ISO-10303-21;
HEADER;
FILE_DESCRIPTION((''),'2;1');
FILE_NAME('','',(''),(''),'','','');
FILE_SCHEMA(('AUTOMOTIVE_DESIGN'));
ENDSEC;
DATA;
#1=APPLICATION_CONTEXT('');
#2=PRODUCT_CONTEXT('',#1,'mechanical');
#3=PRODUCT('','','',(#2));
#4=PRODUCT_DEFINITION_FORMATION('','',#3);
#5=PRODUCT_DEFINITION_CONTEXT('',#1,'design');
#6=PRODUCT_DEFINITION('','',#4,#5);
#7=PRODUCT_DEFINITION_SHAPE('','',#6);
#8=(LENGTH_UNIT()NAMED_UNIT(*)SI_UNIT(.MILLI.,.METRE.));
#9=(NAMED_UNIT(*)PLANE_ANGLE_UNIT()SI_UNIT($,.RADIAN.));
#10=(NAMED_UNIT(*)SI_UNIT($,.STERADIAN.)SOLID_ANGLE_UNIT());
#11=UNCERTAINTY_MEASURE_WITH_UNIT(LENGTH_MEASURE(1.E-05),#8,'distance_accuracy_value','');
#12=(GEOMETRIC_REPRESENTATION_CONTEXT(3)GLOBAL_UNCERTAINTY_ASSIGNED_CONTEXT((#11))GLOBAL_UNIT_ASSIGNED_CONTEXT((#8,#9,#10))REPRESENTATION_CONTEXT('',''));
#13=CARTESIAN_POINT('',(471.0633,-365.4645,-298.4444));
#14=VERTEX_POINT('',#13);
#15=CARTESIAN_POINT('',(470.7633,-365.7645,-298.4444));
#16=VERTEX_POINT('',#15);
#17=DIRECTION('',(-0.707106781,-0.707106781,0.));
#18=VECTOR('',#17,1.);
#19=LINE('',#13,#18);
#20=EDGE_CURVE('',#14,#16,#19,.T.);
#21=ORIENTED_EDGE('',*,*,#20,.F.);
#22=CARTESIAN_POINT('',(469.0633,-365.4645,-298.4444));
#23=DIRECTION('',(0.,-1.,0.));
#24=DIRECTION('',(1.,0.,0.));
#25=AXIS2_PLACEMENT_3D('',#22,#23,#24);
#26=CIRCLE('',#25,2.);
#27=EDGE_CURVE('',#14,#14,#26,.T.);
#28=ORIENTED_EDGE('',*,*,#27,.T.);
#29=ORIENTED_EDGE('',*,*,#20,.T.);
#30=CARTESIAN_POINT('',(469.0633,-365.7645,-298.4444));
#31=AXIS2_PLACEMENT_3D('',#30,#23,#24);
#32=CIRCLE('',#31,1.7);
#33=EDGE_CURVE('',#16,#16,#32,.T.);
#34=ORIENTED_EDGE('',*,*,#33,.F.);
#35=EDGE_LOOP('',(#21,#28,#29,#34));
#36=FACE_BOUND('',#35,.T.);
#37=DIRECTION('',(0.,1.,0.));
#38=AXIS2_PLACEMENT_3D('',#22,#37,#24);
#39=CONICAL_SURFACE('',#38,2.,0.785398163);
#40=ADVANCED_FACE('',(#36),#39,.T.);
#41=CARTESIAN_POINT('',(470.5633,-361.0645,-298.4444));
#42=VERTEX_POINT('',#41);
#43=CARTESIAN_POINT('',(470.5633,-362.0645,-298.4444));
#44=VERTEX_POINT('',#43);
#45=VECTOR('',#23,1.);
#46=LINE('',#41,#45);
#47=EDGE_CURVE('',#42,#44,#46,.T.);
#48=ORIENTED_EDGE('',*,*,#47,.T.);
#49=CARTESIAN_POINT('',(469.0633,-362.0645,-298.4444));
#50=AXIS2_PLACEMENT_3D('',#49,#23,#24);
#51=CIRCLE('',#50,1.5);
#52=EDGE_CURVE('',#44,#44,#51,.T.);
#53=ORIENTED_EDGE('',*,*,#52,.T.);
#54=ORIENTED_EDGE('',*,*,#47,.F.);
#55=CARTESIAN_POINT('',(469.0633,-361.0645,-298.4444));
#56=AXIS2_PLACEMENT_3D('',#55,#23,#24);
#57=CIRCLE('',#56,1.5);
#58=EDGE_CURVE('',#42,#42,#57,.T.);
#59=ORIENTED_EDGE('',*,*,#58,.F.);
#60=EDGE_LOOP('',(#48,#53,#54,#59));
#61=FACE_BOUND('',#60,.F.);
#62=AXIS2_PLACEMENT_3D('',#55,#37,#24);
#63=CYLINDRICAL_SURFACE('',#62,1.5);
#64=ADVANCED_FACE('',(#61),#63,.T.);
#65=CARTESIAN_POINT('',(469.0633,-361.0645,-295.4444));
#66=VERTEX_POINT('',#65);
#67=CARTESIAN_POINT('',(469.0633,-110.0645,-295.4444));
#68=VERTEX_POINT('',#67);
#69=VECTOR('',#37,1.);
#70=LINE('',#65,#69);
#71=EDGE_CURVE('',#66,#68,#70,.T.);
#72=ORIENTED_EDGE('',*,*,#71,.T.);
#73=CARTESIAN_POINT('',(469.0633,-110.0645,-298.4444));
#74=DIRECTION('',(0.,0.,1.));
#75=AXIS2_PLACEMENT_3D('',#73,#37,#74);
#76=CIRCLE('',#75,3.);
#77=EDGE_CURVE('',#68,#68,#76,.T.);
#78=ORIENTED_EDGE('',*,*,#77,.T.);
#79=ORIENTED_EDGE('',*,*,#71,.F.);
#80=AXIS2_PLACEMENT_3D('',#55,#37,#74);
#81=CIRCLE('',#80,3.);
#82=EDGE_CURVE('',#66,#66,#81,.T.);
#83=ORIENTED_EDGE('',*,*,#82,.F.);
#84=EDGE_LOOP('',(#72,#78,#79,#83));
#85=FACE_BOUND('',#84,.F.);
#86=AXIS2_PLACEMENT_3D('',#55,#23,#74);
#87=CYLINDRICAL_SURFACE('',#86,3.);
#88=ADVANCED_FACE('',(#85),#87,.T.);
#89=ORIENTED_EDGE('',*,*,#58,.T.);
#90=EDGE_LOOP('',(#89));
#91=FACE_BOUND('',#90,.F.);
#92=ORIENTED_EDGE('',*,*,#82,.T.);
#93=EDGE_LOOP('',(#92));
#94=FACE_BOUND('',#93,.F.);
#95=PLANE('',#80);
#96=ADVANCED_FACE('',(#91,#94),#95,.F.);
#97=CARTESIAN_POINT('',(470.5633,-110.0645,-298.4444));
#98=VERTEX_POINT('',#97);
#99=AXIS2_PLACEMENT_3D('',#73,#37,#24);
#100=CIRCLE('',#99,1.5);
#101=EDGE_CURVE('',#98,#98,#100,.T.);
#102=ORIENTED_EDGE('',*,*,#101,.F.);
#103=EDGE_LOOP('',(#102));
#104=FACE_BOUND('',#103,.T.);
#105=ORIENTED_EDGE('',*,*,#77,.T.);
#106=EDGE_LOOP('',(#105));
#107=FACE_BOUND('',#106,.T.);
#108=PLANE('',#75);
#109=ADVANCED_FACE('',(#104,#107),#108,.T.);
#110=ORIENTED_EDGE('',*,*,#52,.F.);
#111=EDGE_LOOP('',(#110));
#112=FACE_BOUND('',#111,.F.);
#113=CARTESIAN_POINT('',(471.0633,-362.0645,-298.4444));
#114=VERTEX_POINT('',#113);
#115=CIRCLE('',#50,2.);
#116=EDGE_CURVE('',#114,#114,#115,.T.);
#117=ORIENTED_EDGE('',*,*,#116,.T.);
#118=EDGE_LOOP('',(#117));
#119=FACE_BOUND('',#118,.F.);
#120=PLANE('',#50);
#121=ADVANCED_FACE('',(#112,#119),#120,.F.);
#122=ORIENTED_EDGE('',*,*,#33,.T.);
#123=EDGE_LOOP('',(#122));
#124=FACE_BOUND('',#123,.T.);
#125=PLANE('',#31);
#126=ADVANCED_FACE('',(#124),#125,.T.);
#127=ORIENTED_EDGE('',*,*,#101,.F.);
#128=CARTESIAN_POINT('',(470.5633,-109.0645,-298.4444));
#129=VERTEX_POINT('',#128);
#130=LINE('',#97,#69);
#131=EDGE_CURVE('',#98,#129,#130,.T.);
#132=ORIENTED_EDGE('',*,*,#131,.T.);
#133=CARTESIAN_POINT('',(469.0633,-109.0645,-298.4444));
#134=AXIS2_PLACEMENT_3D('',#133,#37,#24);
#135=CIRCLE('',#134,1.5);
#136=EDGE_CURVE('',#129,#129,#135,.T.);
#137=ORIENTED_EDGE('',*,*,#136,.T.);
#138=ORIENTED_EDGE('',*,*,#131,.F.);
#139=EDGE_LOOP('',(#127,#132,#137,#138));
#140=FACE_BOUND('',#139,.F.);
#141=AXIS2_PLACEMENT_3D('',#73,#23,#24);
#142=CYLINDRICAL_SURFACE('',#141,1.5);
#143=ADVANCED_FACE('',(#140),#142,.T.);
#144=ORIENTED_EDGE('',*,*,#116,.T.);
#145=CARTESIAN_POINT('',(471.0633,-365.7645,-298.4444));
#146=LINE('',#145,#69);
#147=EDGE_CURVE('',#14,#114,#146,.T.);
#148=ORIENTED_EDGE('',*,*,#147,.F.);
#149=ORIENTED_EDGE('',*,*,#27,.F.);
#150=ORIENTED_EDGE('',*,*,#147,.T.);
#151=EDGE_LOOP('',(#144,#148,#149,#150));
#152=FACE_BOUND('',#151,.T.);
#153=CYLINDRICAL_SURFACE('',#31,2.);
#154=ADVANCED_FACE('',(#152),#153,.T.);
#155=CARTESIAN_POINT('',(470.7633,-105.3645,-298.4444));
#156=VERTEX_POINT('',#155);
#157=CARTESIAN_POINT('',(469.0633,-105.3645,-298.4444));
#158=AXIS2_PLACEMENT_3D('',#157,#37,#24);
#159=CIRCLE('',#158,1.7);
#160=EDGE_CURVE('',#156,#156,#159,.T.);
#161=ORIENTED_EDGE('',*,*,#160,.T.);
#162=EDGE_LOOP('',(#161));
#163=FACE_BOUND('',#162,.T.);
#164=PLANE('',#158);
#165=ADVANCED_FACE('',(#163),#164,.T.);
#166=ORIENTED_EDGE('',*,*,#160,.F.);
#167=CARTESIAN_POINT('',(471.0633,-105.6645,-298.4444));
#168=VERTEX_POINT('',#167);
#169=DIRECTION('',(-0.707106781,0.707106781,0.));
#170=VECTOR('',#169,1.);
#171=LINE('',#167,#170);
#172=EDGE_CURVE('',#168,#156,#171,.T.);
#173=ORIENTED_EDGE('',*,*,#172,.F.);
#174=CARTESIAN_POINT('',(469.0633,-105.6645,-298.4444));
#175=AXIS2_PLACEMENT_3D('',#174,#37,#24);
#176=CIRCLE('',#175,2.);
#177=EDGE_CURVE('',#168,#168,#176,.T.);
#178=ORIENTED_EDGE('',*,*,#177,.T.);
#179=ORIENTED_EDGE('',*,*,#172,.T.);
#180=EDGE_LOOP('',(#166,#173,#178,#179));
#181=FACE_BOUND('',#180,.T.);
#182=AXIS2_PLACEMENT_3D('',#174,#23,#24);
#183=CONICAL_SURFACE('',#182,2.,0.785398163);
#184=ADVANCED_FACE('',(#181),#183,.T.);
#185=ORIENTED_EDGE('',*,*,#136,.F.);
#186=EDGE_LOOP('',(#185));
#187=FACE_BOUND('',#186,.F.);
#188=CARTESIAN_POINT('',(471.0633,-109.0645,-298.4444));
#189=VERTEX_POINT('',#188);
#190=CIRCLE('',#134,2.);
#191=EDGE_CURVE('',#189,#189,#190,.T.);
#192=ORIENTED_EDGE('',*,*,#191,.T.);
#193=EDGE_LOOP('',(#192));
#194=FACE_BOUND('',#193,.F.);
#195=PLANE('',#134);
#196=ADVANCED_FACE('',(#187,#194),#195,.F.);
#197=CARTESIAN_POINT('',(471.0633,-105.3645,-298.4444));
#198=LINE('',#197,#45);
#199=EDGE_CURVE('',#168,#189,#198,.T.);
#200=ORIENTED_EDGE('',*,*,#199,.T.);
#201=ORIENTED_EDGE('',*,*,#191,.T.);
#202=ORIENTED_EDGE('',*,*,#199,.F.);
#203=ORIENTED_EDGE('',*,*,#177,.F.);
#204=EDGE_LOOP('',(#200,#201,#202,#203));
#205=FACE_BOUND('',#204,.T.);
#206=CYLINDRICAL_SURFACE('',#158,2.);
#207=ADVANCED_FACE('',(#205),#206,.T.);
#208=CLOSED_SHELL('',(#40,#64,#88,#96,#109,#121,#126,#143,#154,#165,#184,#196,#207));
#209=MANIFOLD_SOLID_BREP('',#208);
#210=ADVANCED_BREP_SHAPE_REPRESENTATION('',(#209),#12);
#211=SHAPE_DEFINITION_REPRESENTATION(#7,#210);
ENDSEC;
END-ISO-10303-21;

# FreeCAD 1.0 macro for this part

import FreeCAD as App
import Part
import Sketcher
from FreeCAD import Vector
Q = App.Units.Quantity


def edges_at(feature, points):
    """Names of the edges that pass closest to the given points."""
    edges = feature.Shape.Edges
    near = lambda p: min(range(len(edges)), key=lambda i: edges[i].distToShape(Part.Vertex(*p))[0])
    return sorted({f"Edge{near(p) + 1}" for p in points})

doc = App.newDocument("Part")
params = doc.addObject("Spreadsheet::Sheet", "Params")
for row, (alias, value) in enumerate([
    ("sketch1_diameter", "6 mm"),
    ("pad1_length", "251 mm"),
    ("sketch2_diameter", "3 mm"),
    ("pad2_length", "4.7 mm"),
    ("sketch3_diameter", "4 mm"),
    ("sketch3_diameter2", "3 mm"),
    ("pad3_length", "3.7 mm"),
    ("chamfer_size", "0.3 mm"),
    ("sketch4_diameter", "3 mm"),
    ("pad4_length", "4.7 mm"),
    ("sketch5_diameter", "4 mm"),
    ("sketch5_diameter2", "3 mm"),
    ("pad5_length", "3.7 mm"),
    ("chamfer2_size", "0.3 mm"),
], start=1):
    params.set(f"A{row}", alias)
    params.set(f"B{row}", "=" + value)
    params.setAlias(f"B{row}", alias)

body = doc.addObject("PartDesign::Body", "Body")

sketch1 = body.newObject("Sketcher::SketchObject", "Sketch")
sketch1.AttachmentSupport = (doc.getObject("XZ_Plane"), [""])
sketch1.MapMode = "FlatFace"
sketch1.AttachmentOffset = App.Placement(Vector(0, 0, 361.0645), App.Rotation())
sketch1.addGeometry(Part.Circle(Vector(469.1, -298.4, 0), Vector(0, 0, 1), 3), False)
sketch1.addConstraint([
    Sketcher.Constraint("Diameter", 0, Q("6 mm")),
    Sketcher.Constraint("DistanceX", -1, 1, 0, 3, Q("469.0633 mm")),
    Sketcher.Constraint("DistanceY", 0, 3, -1, 1, Q("298.4444 mm")),
])
sketch1.setExpression("Constraints[0]", "Params.sketch1_diameter")
pad1 = body.newObject("PartDesign::Pad", "Pad")
pad1.Profile = sketch1
pad1.setExpression("Length", "Params.pad1_length")
pad1.Reversed = True

sketch2 = body.newObject("Sketcher::SketchObject", "Sketch001")
sketch2.AttachmentSupport = (doc.getObject("XZ_Plane"), [""])
sketch2.MapMode = "FlatFace"
sketch2.AttachmentOffset = App.Placement(Vector(0, 0, 110.0645), App.Rotation())
sketch2.addGeometry(Part.Circle(Vector(469.1, -298.4, 0), Vector(0, 0, 1), 1.5), False)
sketch2.addConstraint([
    Sketcher.Constraint("Diameter", 0, Q("3 mm")),
    Sketcher.Constraint("DistanceX", -1, 1, 0, 3, Q("469.0633 mm")),
    Sketcher.Constraint("DistanceY", 0, 3, -1, 1, Q("298.4444 mm")),
])
sketch2.setExpression("Constraints[0]", "Params.sketch2_diameter")
pad2 = body.newObject("PartDesign::Pad", "Pad001")
pad2.Profile = sketch2
pad2.setExpression("Length", "Params.pad2_length")
pad2.Reversed = True

sketch3 = body.newObject("Sketcher::SketchObject", "Sketch002")
sketch3.AttachmentSupport = (doc.getObject("XZ_Plane"), [""])
sketch3.MapMode = "FlatFace"
sketch3.AttachmentOffset = App.Placement(Vector(0, 0, 105.3645), App.Rotation())
sketch3.addGeometry([
    Part.Circle(Vector(469.1, -298.4, 0), Vector(0, 0, 1), 2),
    Part.Circle(Vector(469.1, -298.4, 0), Vector(0, 0, 1), 1.5),
], False)
sketch3.addConstraint([
    Sketcher.Constraint("Coincident", 1, 3, 0, 3),
    Sketcher.Constraint("Diameter", 0, Q("4 mm")),
    Sketcher.Constraint("Diameter", 1, Q("3 mm")),
    Sketcher.Constraint("DistanceX", -1, 1, 0, 3, Q("469.0633 mm")),
    Sketcher.Constraint("DistanceY", 0, 3, -1, 1, Q("298.4444 mm")),
])
sketch3.setExpression("Constraints[1]", "Params.sketch3_diameter")
sketch3.setExpression("Constraints[2]", "Params.sketch3_diameter2")
pad3 = body.newObject("PartDesign::Pad", "Pad002")
pad3.Profile = sketch3
pad3.setExpression("Length", "Params.pad3_length")
doc.recompute()

chamfer = body.newObject("PartDesign::Chamfer", "Chamfer")
chamfer.Base = (pad3, edges_at(pad3, [(467.063, -105.365, -298.444)]))
chamfer.setExpression("Size", "Params.chamfer_size")

sketch4 = body.newObject("Sketcher::SketchObject", "Sketch003")
sketch4.AttachmentSupport = (doc.getObject("XZ_Plane"), [""])
sketch4.MapMode = "FlatFace"
sketch4.AttachmentOffset = App.Placement(Vector(0, 0, 361.0645), App.Rotation())
sketch4.addGeometry(Part.Circle(Vector(469.1, -298.4, 0), Vector(0, 0, 1), 1.5), False)
sketch4.addConstraint([
    Sketcher.Constraint("Diameter", 0, Q("3 mm")),
    Sketcher.Constraint("DistanceX", -1, 1, 0, 3, Q("469.0633 mm")),
    Sketcher.Constraint("DistanceY", 0, 3, -1, 1, Q("298.4444 mm")),
])
sketch4.setExpression("Constraints[0]", "Params.sketch4_diameter")
pad4 = body.newObject("PartDesign::Pad", "Pad003")
pad4.Profile = sketch4
pad4.setExpression("Length", "Params.pad4_length")

sketch5 = body.newObject("Sketcher::SketchObject", "Sketch004")
sketch5.AttachmentSupport = (doc.getObject("XZ_Plane"), [""])
sketch5.MapMode = "FlatFace"
sketch5.AttachmentOffset = App.Placement(Vector(0, 0, 365.7645), App.Rotation())
sketch5.addGeometry([
    Part.Circle(Vector(469.1, -298.4, 0), Vector(0, 0, 1), 2),
    Part.Circle(Vector(469.1, -298.4, 0), Vector(0, 0, 1), 1.5),
], False)
sketch5.addConstraint([
    Sketcher.Constraint("Coincident", 1, 3, 0, 3),
    Sketcher.Constraint("Diameter", 0, Q("4 mm")),
    Sketcher.Constraint("Diameter", 1, Q("3 mm")),
    Sketcher.Constraint("DistanceX", -1, 1, 0, 3, Q("469.0633 mm")),
    Sketcher.Constraint("DistanceY", 0, 3, -1, 1, Q("298.4444 mm")),
])
sketch5.setExpression("Constraints[1]", "Params.sketch5_diameter")
sketch5.setExpression("Constraints[2]", "Params.sketch5_diameter2")
pad5 = body.newObject("PartDesign::Pad", "Pad004")
pad5.Profile = sketch5
pad5.setExpression("Length", "Params.pad5_length")
pad5.Reversed = True
doc.recompute()

chamfer2 = body.newObject("PartDesign::Chamfer", "Chamfer001")
chamfer2.Base = (pad5, edges_at(pad5, [(467.063, -365.764, -298.444)]))
chamfer2.setExpression("Size", "Params.chamfer2_size")

doc.recompute()
